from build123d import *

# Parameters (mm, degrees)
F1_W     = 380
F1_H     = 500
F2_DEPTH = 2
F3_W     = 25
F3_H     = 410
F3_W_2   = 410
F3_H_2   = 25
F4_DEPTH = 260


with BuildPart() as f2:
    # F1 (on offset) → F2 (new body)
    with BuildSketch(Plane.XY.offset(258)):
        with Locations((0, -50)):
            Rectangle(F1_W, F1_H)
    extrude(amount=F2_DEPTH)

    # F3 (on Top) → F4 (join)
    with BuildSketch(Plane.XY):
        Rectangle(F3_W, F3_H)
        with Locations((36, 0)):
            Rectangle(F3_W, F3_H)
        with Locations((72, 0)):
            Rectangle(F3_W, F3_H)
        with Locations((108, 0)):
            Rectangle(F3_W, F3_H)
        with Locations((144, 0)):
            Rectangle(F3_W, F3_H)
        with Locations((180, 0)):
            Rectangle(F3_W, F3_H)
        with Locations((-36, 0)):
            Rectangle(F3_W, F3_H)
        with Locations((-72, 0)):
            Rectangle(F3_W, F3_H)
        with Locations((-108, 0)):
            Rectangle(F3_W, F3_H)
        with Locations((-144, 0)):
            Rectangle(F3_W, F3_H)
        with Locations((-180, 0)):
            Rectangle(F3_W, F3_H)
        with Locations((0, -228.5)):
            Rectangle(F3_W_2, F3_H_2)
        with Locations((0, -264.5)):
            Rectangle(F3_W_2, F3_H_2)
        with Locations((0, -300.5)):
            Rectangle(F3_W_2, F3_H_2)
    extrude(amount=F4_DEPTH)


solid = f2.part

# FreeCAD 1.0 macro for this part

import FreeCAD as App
import Part
import Sketcher


def add_polygon(sketch, points):
    """Adds a closed chain of lines whose ends are joined by coincident constraints."""
    first, n = sketch.GeometryCount, len(points)
    for a, b in zip(points, points[1:] + points[:1]):
        sketch.addGeometry(Part.LineSegment(App.Vector(*a, 0), App.Vector(*b, 0)), False)
    for i in range(n):
        sketch.addConstraint(Sketcher.Constraint("Coincident", first + i, 2, first + (i + 1) % n, 1))

doc = App.newDocument("Part")
params = doc.addObject("Spreadsheet::Sheet", "Params")
for row, (alias, value) in enumerate([
    ("sketch1_width", "380 mm"),
    ("sketch1_height", "500 mm"),
    ("pad1_length", "2 mm"),
    ("sketch2_width", "25 mm"),
    ("sketch2_width2", "410 mm"),
    ("pad2_length", "260 mm"),
], start=1):
    params.set(f"A{row}", alias)
    params.set(f"B{row}", "=" + value)
    params.setAlias(f"B{row}", alias)

body = doc.addObject("PartDesign::Body", "Body")

sketch1 = body.newObject("Sketcher::SketchObject", "Sketch")
sketch1.AttachmentSupport = (doc.getObject("XY_Plane"), [""])
sketch1.MapMode = "FlatFace"
sketch1.AttachmentOffset = App.Placement(App.Vector(0, 0, 258), App.Rotation())
add_polygon(sketch1, [(-190, 200), (-190, -300), (190, -300), (190, 200)])
sketch1.addConstraint([
    Sketcher.Constraint("Vertical", 0),
    Sketcher.Constraint("Horizontal", 1),
    Sketcher.Constraint("Vertical", 2),
    Sketcher.Constraint("Horizontal", 3),
    Sketcher.Constraint("DistanceX", 1, 1, 1, 2, 380.0),
    Sketcher.Constraint("DistanceY", 0, 2, 0, 1, 500.0),
    Sketcher.Constraint("DistanceX", 0, 2, -1, 1, 190.0),
    Sketcher.Constraint("DistanceY", 0, 2, -1, 1, 300.0),
])
sketch1.setExpression("Constraints[8]", "Params.sketch1_width")
sketch1.setExpression("Constraints[9]", "Params.sketch1_height")
pad1 = body.newObject("PartDesign::Pad", "Pad")
pad1.Profile = sketch1
pad1.setExpression("Length", "Params.pad1_length")

sketch2 = body.newObject("Sketcher::SketchObject", "Sketch001")
sketch2.AttachmentSupport = (doc.getObject("XY_Plane"), [""])
sketch2.MapMode = "FlatFace"
add_polygon(sketch2, [(-12, 205), (-12, -205), (12, -205), (12, 205)])
add_polygon(sketch2, [(24, 205), (24, -205), (48, -205), (48, 205)])
add_polygon(sketch2, [(60, 205), (60, -205), (84, -205), (84, 205)])
add_polygon(sketch2, [(96, 205), (96, -205), (120, -205), (120, 205)])
add_polygon(sketch2, [(132, 205), (132, -205), (156, -205), (156, 205)])
add_polygon(sketch2, [(168, 205), (168, -205), (192, -205), (192, 205)])
add_polygon(sketch2, [(-48, 205), (-48, -205), (-24, -205), (-24, 205)])
add_polygon(sketch2, [(-84, 205), (-84, -205), (-60, -205), (-60, 205)])
add_polygon(sketch2, [(-120, 205), (-120, -205), (-96, -205), (-96, 205)])
add_polygon(sketch2, [(-156, 205), (-156, -205), (-132, -205), (-132, 205)])
add_polygon(sketch2, [(-192, 205), (-192, -205), (-168, -205), (-168, 205)])
add_polygon(sketch2, [(-205, -216), (-205, -241), (205, -241), (205, -216)])
add_polygon(sketch2, [(-205, -252), (-205, -277), (205, -277), (205, -252)])
add_polygon(sketch2, [(-205, -288), (-205, -313), (205, -313), (205, -288)])
sketch2.addConstraint([
    Sketcher.Constraint("Vertical", 0),
    Sketcher.Constraint("Horizontal", 1),
    Sketcher.Constraint("Vertical", 2),
    Sketcher.Constraint("Horizontal", 3),
    Sketcher.Constraint("Vertical", 4),
    Sketcher.Constraint("Horizontal", 5),
    Sketcher.Constraint("Vertical", 6),
    Sketcher.Constraint("Horizontal", 7),
    Sketcher.Constraint("Vertical", 8),
    Sketcher.Constraint("Horizontal", 9),
    Sketcher.Constraint("Vertical", 10),
    Sketcher.Constraint("Horizontal", 11),
    Sketcher.Constraint("Vertical", 12),
    Sketcher.Constraint("Horizontal", 13),
    Sketcher.Constraint("Vertical", 14),
    Sketcher.Constraint("Horizontal", 15),
    Sketcher.Constraint("Vertical", 16),
    Sketcher.Constraint("Horizontal", 17),
    Sketcher.Constraint("Vertical", 18),
    Sketcher.Constraint("Horizontal", 19),
    Sketcher.Constraint("Vertical", 20),
    Sketcher.Constraint("Horizontal", 21),
    Sketcher.Constraint("Vertical", 22),
    Sketcher.Constraint("Horizontal", 23),
    Sketcher.Constraint("Vertical", 24),
    Sketcher.Constraint("Horizontal", 25),
    Sketcher.Constraint("Vertical", 26),
    Sketcher.Constraint("Horizontal", 27),
    Sketcher.Constraint("Vertical", 28),
    Sketcher.Constraint("Horizontal", 29),
    Sketcher.Constraint("Vertical", 30),
    Sketcher.Constraint("Horizontal", 31),
    Sketcher.Constraint("Vertical", 32),
    Sketcher.Constraint("Horizontal", 33),
    Sketcher.Constraint("Vertical", 34),
    Sketcher.Constraint("Horizontal", 35),
    Sketcher.Constraint("Vertical", 36),
    Sketcher.Constraint("Horizontal", 37),
    Sketcher.Constraint("Vertical", 38),
    Sketcher.Constraint("Horizontal", 39),
    Sketcher.Constraint("Vertical", 40),
    Sketcher.Constraint("Horizontal", 41),
    Sketcher.Constraint("Vertical", 42),
    Sketcher.Constraint("Horizontal", 43),
    Sketcher.Constraint("Vertical", 44),
    Sketcher.Constraint("Horizontal", 45),
    Sketcher.Constraint("Vertical", 46),
    Sketcher.Constraint("Horizontal", 47),
    Sketcher.Constraint("Vertical", 48),
    Sketcher.Constraint("Horizontal", 49),
    Sketcher.Constraint("Vertical", 50),
    Sketcher.Constraint("Horizontal", 51),
    Sketcher.Constraint("Vertical", 52),
    Sketcher.Constraint("Horizontal", 53),
    Sketcher.Constraint("Vertical", 54),
    Sketcher.Constraint("Horizontal", 55),
    Sketcher.Constraint("Symmetric", 0, 2, 2, 2, -1, 1),
    Sketcher.Constraint("Symmetric", 6, 2, 24, 2, -1, 1),
    Sketcher.Constraint("Symmetric", 4, 2, 26, 2, -1, 1),
    Sketcher.Constraint("Symmetric", 10, 2, 28, 2, -1, 1),
    Sketcher.Constraint("Symmetric", 8, 2, 30, 2, -1, 1),
    Sketcher.Constraint("Symmetric", 14, 2, 32, 2, -1, 1),
    Sketcher.Constraint("Symmetric", 12, 2, 34, 2, -1, 1),
    Sketcher.Constraint("Symmetric", 18, 2, 36, 2, -1, 1),
    Sketcher.Constraint("Symmetric", 16, 2, 38, 2, -1, 1),
    Sketcher.Constraint("Symmetric", 22, 2, 40, 2, -1, 1),
    Sketcher.Constraint("Symmetric", 20, 2, 42, 2, -1, 1),
    Sketcher.Constraint("Horizontal", 1, 2, 4, 2),
    Sketcher.Constraint("Horizontal", 3, 2, 6, 2),
    Sketcher.Constraint("Horizontal", 5, 2, 8, 2),
    Sketcher.Constraint("Horizontal", 7, 2, 10, 2),
    Sketcher.Constraint("Horizontal", 9, 2, 12, 2),
    Sketcher.Constraint("Horizontal", 11, 2, 14, 2),
    Sketcher.Constraint("Horizontal", 13, 2, 16, 2),
    Sketcher.Constraint("Horizontal", 15, 2, 18, 2),
    Sketcher.Constraint("Horizontal", 17, 2, 20, 2),
    Sketcher.Constraint("Horizontal", 19, 2, 22, 2),
    Sketcher.Constraint("Vertical", 47, 2, 48, 2),
    Sketcher.Constraint("Vertical", 46, 2, 49, 2),
    Sketcher.Constraint("Vertical", 51, 2, 52, 2),
    Sketcher.Constraint("Vertical", 50, 2, 53, 2),
    Sketcher.Constraint("Equal", 3, 5),
    Sketcher.Constraint("Equal", 7, 9),
    Sketcher.Constraint("Equal", 11, 13),
    Sketcher.Constraint("Equal", 15, 17),
    Sketcher.Constraint("Equal", 19, 21),
    Sketcher.Constraint("Equal", 55, 0),
    Sketcher.Constraint("Equal", 43, 44),
    Sketcher.Constraint("Equal", 46, 48),
    Sketcher.Constraint("Equal", 50, 52),
    Sketcher.Constraint("DistanceX", 1, 1, 1, 2, 25.0),
    Sketcher.Constraint("DistanceX", 45, 1, 45, 2, 410.0),
    Sketcher.Constraint("DistanceX", 44, 2, -1, 1, 205.0),
    Sketcher.Constraint("DistanceY", 44, 2, -1, 1, 241.0),
    Sketcher.Constraint("DistanceY", 48, 2, -1, 1, 277.0),
    Sketcher.Constraint("DistanceY", 52, 2, -1, 1, 313.0),
    Sketcher.Constraint("DistanceX", 1, 2, 4, 2, 11.0),
    Sketcher.Constraint("DistanceX", 5, 2, 8, 2, 11.0),
    Sketcher.Constraint("DistanceX", 9, 2, 12, 2, 11.0),
    Sketcher.Constraint("DistanceX", 13, 2, 16, 2, 11.0),
    Sketcher.Constraint("DistanceX", 17, 2, 20, 2, 11.0),
])
sketch2.setExpression("Constraints[146]", "Params.sketch2_width")
sketch2.setExpression("Constraints[147]", "Params.sketch2_width2")
pad2 = body.newObject("PartDesign::Pad", "Pad001")
pad2.Profile = sketch2
pad2.setExpression("Length", "Params.pad2_length")

doc.recompute()
